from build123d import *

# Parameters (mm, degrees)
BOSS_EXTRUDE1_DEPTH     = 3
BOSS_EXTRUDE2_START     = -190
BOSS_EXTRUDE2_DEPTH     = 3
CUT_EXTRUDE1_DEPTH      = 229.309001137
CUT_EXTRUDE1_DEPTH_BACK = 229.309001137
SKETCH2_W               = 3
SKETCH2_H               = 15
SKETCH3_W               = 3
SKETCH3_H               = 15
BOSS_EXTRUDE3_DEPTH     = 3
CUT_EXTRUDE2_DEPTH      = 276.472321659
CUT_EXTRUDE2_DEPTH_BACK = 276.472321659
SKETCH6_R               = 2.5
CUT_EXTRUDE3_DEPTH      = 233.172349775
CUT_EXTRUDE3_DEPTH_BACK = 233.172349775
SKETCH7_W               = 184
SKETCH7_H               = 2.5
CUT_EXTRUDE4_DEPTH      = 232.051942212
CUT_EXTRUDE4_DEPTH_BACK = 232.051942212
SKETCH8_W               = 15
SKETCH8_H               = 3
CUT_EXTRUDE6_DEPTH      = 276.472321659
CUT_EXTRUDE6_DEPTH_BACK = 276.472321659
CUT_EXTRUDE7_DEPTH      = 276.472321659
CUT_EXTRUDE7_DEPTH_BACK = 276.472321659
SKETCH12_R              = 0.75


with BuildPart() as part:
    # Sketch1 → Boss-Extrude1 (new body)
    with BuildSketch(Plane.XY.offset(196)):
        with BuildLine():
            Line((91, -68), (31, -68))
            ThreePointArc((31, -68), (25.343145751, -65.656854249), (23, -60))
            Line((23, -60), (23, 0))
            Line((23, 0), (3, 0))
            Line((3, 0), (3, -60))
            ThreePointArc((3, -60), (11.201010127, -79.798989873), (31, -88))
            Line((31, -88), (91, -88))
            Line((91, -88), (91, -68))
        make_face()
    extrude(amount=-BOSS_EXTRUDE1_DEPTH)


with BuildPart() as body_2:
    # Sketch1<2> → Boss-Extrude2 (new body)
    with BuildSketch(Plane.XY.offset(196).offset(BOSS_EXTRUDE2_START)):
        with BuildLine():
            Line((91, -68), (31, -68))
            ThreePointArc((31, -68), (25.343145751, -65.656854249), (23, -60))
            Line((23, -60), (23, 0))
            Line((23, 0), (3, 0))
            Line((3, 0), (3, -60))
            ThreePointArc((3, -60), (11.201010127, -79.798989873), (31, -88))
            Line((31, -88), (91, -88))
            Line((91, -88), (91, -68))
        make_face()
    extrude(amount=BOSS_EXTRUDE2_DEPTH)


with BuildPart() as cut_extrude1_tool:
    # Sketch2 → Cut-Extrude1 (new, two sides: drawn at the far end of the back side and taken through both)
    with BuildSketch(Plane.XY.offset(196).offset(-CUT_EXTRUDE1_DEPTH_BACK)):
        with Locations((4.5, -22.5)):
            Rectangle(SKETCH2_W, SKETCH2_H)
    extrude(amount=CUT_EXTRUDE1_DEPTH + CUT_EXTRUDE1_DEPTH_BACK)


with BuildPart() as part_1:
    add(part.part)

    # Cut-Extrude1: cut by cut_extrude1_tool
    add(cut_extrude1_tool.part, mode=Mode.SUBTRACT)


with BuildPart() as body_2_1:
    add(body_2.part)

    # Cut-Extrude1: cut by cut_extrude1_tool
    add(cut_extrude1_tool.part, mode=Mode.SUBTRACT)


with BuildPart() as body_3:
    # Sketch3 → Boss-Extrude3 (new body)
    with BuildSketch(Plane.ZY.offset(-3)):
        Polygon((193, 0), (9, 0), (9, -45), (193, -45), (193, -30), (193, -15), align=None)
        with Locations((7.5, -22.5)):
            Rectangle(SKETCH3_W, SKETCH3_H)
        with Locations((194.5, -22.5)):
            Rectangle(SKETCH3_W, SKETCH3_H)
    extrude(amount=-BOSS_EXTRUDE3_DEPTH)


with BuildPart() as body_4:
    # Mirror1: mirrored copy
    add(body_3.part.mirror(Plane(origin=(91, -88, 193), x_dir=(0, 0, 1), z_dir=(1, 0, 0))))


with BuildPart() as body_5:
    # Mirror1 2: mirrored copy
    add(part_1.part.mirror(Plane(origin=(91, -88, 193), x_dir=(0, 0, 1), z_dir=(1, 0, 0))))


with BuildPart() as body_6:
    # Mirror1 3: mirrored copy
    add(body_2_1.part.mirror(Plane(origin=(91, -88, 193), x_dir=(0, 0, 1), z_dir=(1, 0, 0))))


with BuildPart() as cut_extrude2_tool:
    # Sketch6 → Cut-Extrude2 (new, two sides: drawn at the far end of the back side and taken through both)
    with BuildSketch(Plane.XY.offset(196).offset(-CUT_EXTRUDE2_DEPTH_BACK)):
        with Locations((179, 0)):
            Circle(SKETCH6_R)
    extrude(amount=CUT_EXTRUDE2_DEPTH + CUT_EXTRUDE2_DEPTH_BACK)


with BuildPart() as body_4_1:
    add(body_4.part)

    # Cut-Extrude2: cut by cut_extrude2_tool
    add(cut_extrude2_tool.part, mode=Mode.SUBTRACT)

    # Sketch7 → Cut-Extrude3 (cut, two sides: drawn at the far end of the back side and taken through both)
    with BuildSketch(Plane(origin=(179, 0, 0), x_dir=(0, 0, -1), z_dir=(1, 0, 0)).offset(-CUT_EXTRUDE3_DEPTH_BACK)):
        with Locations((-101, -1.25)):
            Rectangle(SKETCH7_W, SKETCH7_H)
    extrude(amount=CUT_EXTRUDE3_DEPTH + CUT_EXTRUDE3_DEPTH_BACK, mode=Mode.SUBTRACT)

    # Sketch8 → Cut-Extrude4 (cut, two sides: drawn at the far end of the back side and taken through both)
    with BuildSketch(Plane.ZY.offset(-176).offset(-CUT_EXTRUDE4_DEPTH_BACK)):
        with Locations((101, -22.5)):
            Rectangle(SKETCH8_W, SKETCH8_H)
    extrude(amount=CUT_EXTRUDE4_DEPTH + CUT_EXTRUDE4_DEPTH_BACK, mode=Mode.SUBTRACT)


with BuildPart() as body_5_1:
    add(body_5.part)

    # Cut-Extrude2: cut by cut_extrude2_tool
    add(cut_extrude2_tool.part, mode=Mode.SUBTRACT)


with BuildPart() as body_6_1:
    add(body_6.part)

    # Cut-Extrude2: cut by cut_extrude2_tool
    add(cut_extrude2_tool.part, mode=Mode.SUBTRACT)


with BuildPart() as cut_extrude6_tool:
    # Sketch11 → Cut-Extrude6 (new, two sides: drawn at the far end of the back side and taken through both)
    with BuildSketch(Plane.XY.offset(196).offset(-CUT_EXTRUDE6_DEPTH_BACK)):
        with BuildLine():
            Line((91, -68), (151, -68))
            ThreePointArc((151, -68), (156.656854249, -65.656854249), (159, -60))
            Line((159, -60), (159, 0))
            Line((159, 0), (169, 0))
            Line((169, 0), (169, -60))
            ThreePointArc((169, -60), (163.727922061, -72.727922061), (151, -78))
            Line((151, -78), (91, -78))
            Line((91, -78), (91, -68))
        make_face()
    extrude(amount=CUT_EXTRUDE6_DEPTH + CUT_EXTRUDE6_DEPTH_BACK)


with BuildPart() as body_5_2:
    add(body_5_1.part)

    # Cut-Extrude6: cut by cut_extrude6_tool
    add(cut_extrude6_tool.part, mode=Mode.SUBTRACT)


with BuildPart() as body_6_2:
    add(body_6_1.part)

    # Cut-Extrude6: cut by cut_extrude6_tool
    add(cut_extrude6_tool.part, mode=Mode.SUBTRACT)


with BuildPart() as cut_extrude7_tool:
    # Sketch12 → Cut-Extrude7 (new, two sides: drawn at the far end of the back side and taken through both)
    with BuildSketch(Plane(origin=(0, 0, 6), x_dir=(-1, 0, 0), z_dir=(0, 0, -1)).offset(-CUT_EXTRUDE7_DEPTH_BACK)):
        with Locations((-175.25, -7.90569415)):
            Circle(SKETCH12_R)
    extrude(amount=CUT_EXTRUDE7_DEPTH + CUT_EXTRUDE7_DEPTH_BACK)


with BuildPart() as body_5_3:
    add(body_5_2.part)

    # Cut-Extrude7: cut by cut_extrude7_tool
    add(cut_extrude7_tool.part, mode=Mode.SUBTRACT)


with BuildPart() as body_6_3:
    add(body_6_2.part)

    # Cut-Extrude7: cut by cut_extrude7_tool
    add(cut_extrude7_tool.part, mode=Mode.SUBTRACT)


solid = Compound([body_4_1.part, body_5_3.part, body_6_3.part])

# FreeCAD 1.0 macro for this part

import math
import FreeCAD as App
import Part
import Sketcher

V = App.Vector

doc = App.newDocument("Part")
body = doc.addObject("PartDesign::Body", "Body")

sketch1 = body.newObject("Sketcher::SketchObject", "Sketch")
sketch1.AttachmentSupport = (doc.getObject("XY_Plane"), [""])
sketch1.MapMode = "FlatFace"
sketch1.AttachmentOffset = App.Placement(V(0, 0, 196), App.Rotation())
sketch1.addGeometry(Part.LineSegment(V(91, -68, 0), V(31, -68, 0)), False)
sketch1.addGeometry(Part.ArcOfCircle(Part.Circle(V(31, -60, 0), V(0, 0, 1), 8), math.radians(-180), math.radians(-90)), False)
sketch1.addGeometry(Part.LineSegment(V(23, -60, 0), V(23, 0, 0)), False)
sketch1.addGeometry(Part.LineSegment(V(23, 0, 0), V(3, 0, 0)), False)
sketch1.addGeometry(Part.LineSegment(V(3, 0, 0), V(3, -60, 0)), False)
sketch1.addGeometry(Part.ArcOfCircle(Part.Circle(V(31, -60, 0), V(0, 0, 1), 28), math.radians(-180), math.radians(-90)), False)
sketch1.addGeometry(Part.LineSegment(V(31, -88, 0), V(91, -88, 0)), False)
sketch1.addGeometry(Part.LineSegment(V(91, -88, 0), V(91, -68, 0)), False)
sketch1.addConstraint(Sketcher.Constraint("Tangent", 0, 2, 1, 2))
sketch1.addConstraint(Sketcher.Constraint("Tangent", 1, 1, 2, 1))
sketch1.addConstraint(Sketcher.Constraint("Coincident", 2, 2, 3, 1))
sketch1.addConstraint(Sketcher.Constraint("Coincident", 3, 2, 4, 1))
sketch1.addConstraint(Sketcher.Constraint("Tangent", 4, 2, 5, 1))
sketch1.addConstraint(Sketcher.Constraint("Tangent", 5, 2, 6, 1))
sketch1.addConstraint(Sketcher.Constraint("Coincident", 6, 2, 7, 1))
sketch1.addConstraint(Sketcher.Constraint("Coincident", 7, 2, 0, 1))
sketch1.addConstraint(Sketcher.Constraint("Horizontal", 0))
sketch1.addConstraint(Sketcher.Constraint("Vertical", 2))
sketch1.addConstraint(Sketcher.Constraint("Horizontal", 3))
sketch1.addConstraint(Sketcher.Constraint("Vertical", 4))
sketch1.addConstraint(Sketcher.Constraint("Horizontal", 6))
sketch1.addConstraint(Sketcher.Constraint("Vertical", 7))
sketch1.addConstraint(Sketcher.Constraint("Coincident", 5, 3, 1, 3))
sketch1.addConstraint(Sketcher.Constraint("PointOnObject", 2, 2, -1))
sketch1.addConstraint(Sketcher.Constraint("Equal", 6, 2))
sketch1.addConstraint(Sketcher.Constraint("Radius", 1, 8.0))
sketch1.addConstraint(Sketcher.Constraint("Radius", 5, 28.0))
sketch1.addConstraint(Sketcher.Constraint("DistanceX", 0, 2, 0, 1, 60.0))
sketch1.addConstraint(Sketcher.Constraint("DistanceX", -1, 1, 1, 3, 31.0))
pad1 = body.newObject("PartDesign::Pad", "Pad")
pad1.Profile = sketch1
pad1.Length = 3
pad1.Reversed = True
body2 = doc.addObject("PartDesign::Body", "Body001")

sketch2 = body2.newObject("Sketcher::SketchObject", "Sketch001")
sketch2.AttachmentSupport = (doc.getObject("XY_Plane001"), [""])
sketch2.MapMode = "FlatFace"
sketch2.AttachmentOffset = App.Placement(V(0, 0, 6), App.Rotation())
sketch2.addGeometry(Part.LineSegment(V(91, -68, 0), V(31, -68, 0)), False)
sketch2.addGeometry(Part.ArcOfCircle(Part.Circle(V(31, -60, 0), V(0, 0, 1), 8), math.radians(-180), math.radians(-90)), False)
sketch2.addGeometry(Part.LineSegment(V(23, -60, 0), V(23, 0, 0)), False)
sketch2.addGeometry(Part.LineSegment(V(23, 0, 0), V(3, 0, 0)), False)
sketch2.addGeometry(Part.LineSegment(V(3, 0, 0), V(3, -60, 0)), False)
sketch2.addGeometry(Part.ArcOfCircle(Part.Circle(V(31, -60, 0), V(0, 0, 1), 28), math.radians(-180), math.radians(-90)), False)
sketch2.addGeometry(Part.LineSegment(V(31, -88, 0), V(91, -88, 0)), False)
sketch2.addGeometry(Part.LineSegment(V(91, -88, 0), V(91, -68, 0)), False)
sketch2.addConstraint(Sketcher.Constraint("Tangent", 0, 2, 1, 2))
sketch2.addConstraint(Sketcher.Constraint("Tangent", 1, 1, 2, 1))
sketch2.addConstraint(Sketcher.Constraint("Coincident", 2, 2, 3, 1))
sketch2.addConstraint(Sketcher.Constraint("Coincident", 3, 2, 4, 1))
sketch2.addConstraint(Sketcher.Constraint("Tangent", 4, 2, 5, 1))
sketch2.addConstraint(Sketcher.Constraint("Tangent", 5, 2, 6, 1))
sketch2.addConstraint(Sketcher.Constraint("Coincident", 6, 2, 7, 1))
sketch2.addConstraint(Sketcher.Constraint("Coincident", 7, 2, 0, 1))
sketch2.addConstraint(Sketcher.Constraint("Horizontal", 0))
sketch2.addConstraint(Sketcher.Constraint("Vertical", 2))
sketch2.addConstraint(Sketcher.Constraint("Horizontal", 3))
sketch2.addConstraint(Sketcher.Constraint("Vertical", 4))
sketch2.addConstraint(Sketcher.Constraint("Horizontal", 6))
sketch2.addConstraint(Sketcher.Constraint("Vertical", 7))
sketch2.addConstraint(Sketcher.Constraint("Coincident", 5, 3, 1, 3))
sketch2.addConstraint(Sketcher.Constraint("PointOnObject", 2, 2, -1))
sketch2.addConstraint(Sketcher.Constraint("Equal", 6, 2))
sketch2.addConstraint(Sketcher.Constraint("Radius", 1, 8.0))
sketch2.addConstraint(Sketcher.Constraint("Radius", 5, 28.0))
sketch2.addConstraint(Sketcher.Constraint("DistanceX", 0, 2, 0, 1, 60.0))
sketch2.addConstraint(Sketcher.Constraint("DistanceX", -1, 1, 1, 3, 31.0))
pad2 = body2.newObject("PartDesign::Pad", "Pad001")
pad2.Profile = sketch2
pad2.Length = 3
body3 = doc.addObject("PartDesign::Body", "Body002")

sketch3 = body3.newObject("Sketcher::SketchObject", "Sketch002")
sketch3.AttachmentSupport = (doc.getObject("XY_Plane002"), [""])
sketch3.MapMode = "FlatFace"
sketch3.AttachmentOffset = App.Placement(V(0, 0, 196), App.Rotation())
sketch3.addGeometry(Part.LineSegment(V(3, -15, 0), V(3, -30, 0)), False)
sketch3.addGeometry(Part.LineSegment(V(3, -30, 0), V(6, -30, 0)), False)
sketch3.addGeometry(Part.LineSegment(V(6, -30, 0), V(6, -15, 0)), False)
sketch3.addGeometry(Part.LineSegment(V(6, -15, 0), V(3, -15, 0)), False)
sketch3.addConstraint(Sketcher.Constraint("Coincident", 0, 2, 1, 1))
sketch3.addConstraint(Sketcher.Constraint("Coincident", 1, 2, 2, 1))
sketch3.addConstraint(Sketcher.Constraint("Coincident", 2, 2, 3, 1))
sketch3.addConstraint(Sketcher.Constraint("Coincident", 3, 2, 0, 1))
sketch3.addConstraint(Sketcher.Constraint("Vertical", 0))
sketch3.addConstraint(Sketcher.Constraint("Horizontal", 1))
sketch3.addConstraint(Sketcher.Constraint("Vertical", 2))
sketch3.addConstraint(Sketcher.Constraint("Horizontal", 3))
sketch3.addConstraint(Sketcher.Constraint("DistanceX", 1, 1, 1, 2, 3.0))
sketch3.addConstraint(Sketcher.Constraint("DistanceY", 0, 2, 0, 1, 15.0))
sketch3.addConstraint(Sketcher.Constraint("DistanceX", -1, 1, 0, 2, 3.0))
sketch3.addConstraint(Sketcher.Constraint("DistanceY", 0, 2, -1, 1, 30.0))
pad3 = body3.newObject("PartDesign::Pad", "Pad002")
pad3.Profile = sketch3
pad3.Type = "TwoLengths"
pad3.Length = 229.309001
pad3.Length2 = 229.309001
doc.recompute()

body4 = doc.addObject("PartDesign::Body", "Body003")
body4.BaseFeature = body3
boolean = body.newObject("PartDesign::Boolean", "Boolean")
boolean.Type = "Cut"
boolean.addObjects([body4])
doc.recompute()

boolean2 = body2.newObject("PartDesign::Boolean", "Boolean001")
boolean2.Type = "Cut"
boolean2.addObjects([body3])
body5 = doc.addObject("PartDesign::Body", "Body004")

sketch4 = body5.newObject("Sketcher::SketchObject", "Sketch003")
sketch4.AttachmentSupport = (doc.getObject("YZ_Plane004"), [""])
sketch4.MapMode = "FlatFace"
sketch4.AttachmentOffset = App.Placement(V(0, 0, 3), App.Rotation())
sketch4.addGeometry(Part.LineSegment(V(0, 193, 0), V(0, 9, 0)), False)
sketch4.addGeometry(Part.LineSegment(V(0, 9, 0), V(-15, 9, 0)), False)
sketch4.addGeometry(Part.LineSegment(V(-15, 9, 0), V(-15, 6, 0)), False)
sketch4.addGeometry(Part.LineSegment(V(-15, 6, 0), V(-30, 6, 0)), False)
sketch4.addGeometry(Part.LineSegment(V(-30, 6, 0), V(-30, 9, 0)), False)
sketch4.addGeometry(Part.LineSegment(V(-30, 9, 0), V(-45, 9, 0)), False)
sketch4.addGeometry(Part.LineSegment(V(-45, 9, 0), V(-45, 193, 0)), False)
sketch4.addGeometry(Part.LineSegment(V(-45, 193, 0), V(-30, 193, 0)), False)
sketch4.addGeometry(Part.LineSegment(V(-30, 193, 0), V(-30, 196, 0)), False)
sketch4.addGeometry(Part.LineSegment(V(-30, 196, 0), V(-15, 196, 0)), False)
sketch4.addGeometry(Part.LineSegment(V(-15, 196, 0), V(-15, 193, 0)), False)
sketch4.addGeometry(Part.LineSegment(V(-15, 193, 0), V(0, 193, 0)), False)
sketch4.addConstraint(Sketcher.Constraint("Coincident", 0, 2, 1, 1))
sketch4.addConstraint(Sketcher.Constraint("Coincident", 1, 2, 2, 1))
sketch4.addConstraint(Sketcher.Constraint("Coincident", 2, 2, 3, 1))
sketch4.addConstraint(Sketcher.Constraint("Coincident", 3, 2, 4, 1))
sketch4.addConstraint(Sketcher.Constraint("Coincident", 4, 2, 5, 1))
sketch4.addConstraint(Sketcher.Constraint("Coincident", 5, 2, 6, 1))
sketch4.addConstraint(Sketcher.Constraint("Coincident", 6, 2, 7, 1))
sketch4.addConstraint(Sketcher.Constraint("Coincident", 7, 2, 8, 1))
sketch4.addConstraint(Sketcher.Constraint("Coincident", 8, 2, 9, 1))
sketch4.addConstraint(Sketcher.Constraint("Coincident", 9, 2, 10, 1))
sketch4.addConstraint(Sketcher.Constraint("Coincident", 10, 2, 11, 1))
sketch4.addConstraint(Sketcher.Constraint("Coincident", 11, 2, 0, 1))
sketch4.addConstraint(Sketcher.Constraint("Vertical", 0))
sketch4.addConstraint(Sketcher.Constraint("Horizontal", 1))
sketch4.addConstraint(Sketcher.Constraint("Vertical", 2))
sketch4.addConstraint(Sketcher.Constraint("Horizontal", 3))
sketch4.addConstraint(Sketcher.Constraint("Vertical", 4))
sketch4.addConstraint(Sketcher.Constraint("Horizontal", 5))
sketch4.addConstraint(Sketcher.Constraint("Vertical", 6))
sketch4.addConstraint(Sketcher.Constraint("Horizontal", 7))
sketch4.addConstraint(Sketcher.Constraint("Vertical", 8))
sketch4.addConstraint(Sketcher.Constraint("Horizontal", 9))
sketch4.addConstraint(Sketcher.Constraint("Vertical", 10))
sketch4.addConstraint(Sketcher.Constraint("Horizontal", 11))
sketch4.addConstraint(Sketcher.Constraint("PointOnObject", 0, 2, -2))
sketch4.addConstraint(Sketcher.Constraint("Horizontal", 1, 2, 4, 2))
sketch4.addConstraint(Sketcher.Constraint("Horizontal", 7, 2, 10, 2))
sketch4.addConstraint(Sketcher.Constraint("Vertical", 4, 2, 7, 2))
sketch4.addConstraint(Sketcher.Constraint("Vertical", 2, 2, 9, 2))
sketch4.addConstraint(Sketcher.Constraint("Equal", 1, 3))
sketch4.addConstraint(Sketcher.Constraint("Equal", 3, 5))
sketch4.addConstraint(Sketcher.Constraint("Equal", 4, 8))
sketch4.addConstraint(Sketcher.Constraint("DistanceX", 1, 2, 1, 1, 15.0))
sketch4.addConstraint(Sketcher.Constraint("DistanceY", 0, 2, 0, 1, 184.0))
sketch4.addConstraint(Sketcher.Constraint("DistanceY", 2, 2, 2, 1, 3.0))
sketch4.addConstraint(Sketcher.Constraint("DistanceY", -1, 1, 0, 2, 9.0))
pad4 = body5.newObject("PartDesign::Pad", "Pad003")
pad4.Profile = sketch4
pad4.Length = 3
body6 = doc.addObject("PartDesign::Body", "Body005")
doc.recompute()

mirroring = doc.addObject("Part::Mirroring", "Mirroring")
mirroring.Source = body5
mirroring.Base = V(91, -88, 193)
mirroring.Normal = V(1, 0, 0)
body6.BaseFeature = mirroring
doc.recompute()
body7 = doc.addObject("PartDesign::Body", "Body006")
doc.recompute()

mirroring2 = doc.addObject("Part::Mirroring", "Mirroring001")
mirroring2.Source = body
mirroring2.Base = V(91, -88, 193)
mirroring2.Normal = V(1, 0, 0)
body7.BaseFeature = mirroring2
doc.recompute()
body8 = doc.addObject("PartDesign::Body", "Body007")
doc.recompute()

mirroring3 = doc.addObject("Part::Mirroring", "Mirroring002")
mirroring3.Source = body2
mirroring3.Base = V(91, -88, 193)
mirroring3.Normal = V(1, 0, 0)
body8.BaseFeature = mirroring3
doc.recompute()
body9 = doc.addObject("PartDesign::Body", "Body008")

sketch5 = body9.newObject("Sketcher::SketchObject", "Sketch004")
sketch5.AttachmentSupport = (doc.getObject("XY_Plane008"), [""])
sketch5.MapMode = "FlatFace"
sketch5.AttachmentOffset = App.Placement(V(0, 0, 196), App.Rotation())
sketch5.addGeometry(Part.Circle(V(179, 0, 0), V(0, 0, 1), 2.5), False)
sketch5.addConstraint(Sketcher.Constraint("PointOnObject", 0, 3, -1))
sketch5.addConstraint(Sketcher.Constraint("Diameter", 0, 5.0))
sketch5.addConstraint(Sketcher.Constraint("DistanceX", -1, 1, 0, 3, 179.0))
pad5 = body9.newObject("PartDesign::Pad", "Pad004")
pad5.Profile = sketch5
pad5.Type = "TwoLengths"
pad5.Length = 276.472322
pad5.Length2 = 276.472322
doc.recompute()

body10 = doc.addObject("PartDesign::Body", "Body009")
body10.BaseFeature = body9
boolean3 = body6.newObject("PartDesign::Boolean", "Boolean002")
boolean3.Type = "Cut"
boolean3.addObjects([body10])
doc.recompute()

sketch6 = body6.newObject("Sketcher::SketchObject", "Sketch005")
sketch6.AttachmentSupport = (doc.getObject("YZ_Plane005"), [""])
sketch6.MapMode = "FlatFace"
sketch6.AttachmentOffset = App.Placement(V(0, 0, 179), App.Rotation())
sketch6.addGeometry(Part.LineSegment(V(0, 193, 0), V(-2.5, 193, 0)), False)
sketch6.addGeometry(Part.LineSegment(V(-2.5, 193, 0), V(-2.5, 9, 0)), False)
sketch6.addGeometry(Part.LineSegment(V(-2.5, 9, 0), V(0, 9, 0)), False)
sketch6.addGeometry(Part.LineSegment(V(0, 9, 0), V(0, 193, 0)), False)
sketch6.addConstraint(Sketcher.Constraint("Coincident", 0, 2, 1, 1))
sketch6.addConstraint(Sketcher.Constraint("Coincident", 1, 2, 2, 1))
sketch6.addConstraint(Sketcher.Constraint("Coincident", 2, 2, 3, 1))
sketch6.addConstraint(Sketcher.Constraint("Coincident", 3, 2, 0, 1))
sketch6.addConstraint(Sketcher.Constraint("Horizontal", 0))
sketch6.addConstraint(Sketcher.Constraint("Vertical", 1))
sketch6.addConstraint(Sketcher.Constraint("Horizontal", 2))
sketch6.addConstraint(Sketcher.Constraint("Vertical", 3))
sketch6.addConstraint(Sketcher.Constraint("PointOnObject", 2, 2, -2))
sketch6.addConstraint(Sketcher.Constraint("DistanceY", 1, 2, 1, 1, 184.0))
sketch6.addConstraint(Sketcher.Constraint("DistanceX", 0, 2, 0, 1, 2.5))
sketch6.addConstraint(Sketcher.Constraint("DistanceY", -1, 1, 0, 2, 193.0))
pocket1 = body6.newObject("PartDesign::Pocket", "Pocket")
pocket1.Profile = sketch6
pocket1.Type = "ThroughAll"
pocket1.Midplane = True

sketch7 = body6.newObject("Sketcher::SketchObject", "Sketch006")
sketch7.AttachmentSupport = (doc.getObject("YZ_Plane005"), [""])
sketch7.MapMode = "FlatFace"
sketch7.AttachmentOffset = App.Placement(V(0, 0, 176), App.Rotation())
sketch7.addGeometry(Part.LineSegment(V(-21, 93.5, 0), V(-24, 93.5, 0)), False)
sketch7.addGeometry(Part.LineSegment(V(-24, 93.5, 0), V(-24, 108.5, 0)), False)
sketch7.addGeometry(Part.LineSegment(V(-24, 108.5, 0), V(-21, 108.5, 0)), False)
sketch7.addGeometry(Part.LineSegment(V(-21, 108.5, 0), V(-21, 93.5, 0)), False)
sketch7.addConstraint(Sketcher.Constraint("Coincident", 0, 2, 1, 1))
sketch7.addConstraint(Sketcher.Constraint("Coincident", 1, 2, 2, 1))
sketch7.addConstraint(Sketcher.Constraint("Coincident", 2, 2, 3, 1))
sketch7.addConstraint(Sketcher.Constraint("Coincident", 3, 2, 0, 1))
sketch7.addConstraint(Sketcher.Constraint("Horizontal", 0))
sketch7.addConstraint(Sketcher.Constraint("Vertical", 1))
sketch7.addConstraint(Sketcher.Constraint("Horizontal", 2))
sketch7.addConstraint(Sketcher.Constraint("Vertical", 3))
sketch7.addConstraint(Sketcher.Constraint("DistanceX", 0, 2, 0, 1, 3.0))
sketch7.addConstraint(Sketcher.Constraint("DistanceY", 1, 1, 1, 2, 15.0))
sketch7.addConstraint(Sketcher.Constraint("DistanceX", 0, 2, -1, 1, 24.0))
sketch7.addConstraint(Sketcher.Constraint("DistanceY", -1, 1, 0, 2, 93.5))
pocket2 = body6.newObject("PartDesign::Pocket", "Pocket001")
pocket2.Profile = sketch7
pocket2.Type = "ThroughAll"
pocket2.Midplane = True
doc.recompute()

body11 = doc.addObject("PartDesign::Body", "Body010")
body11.BaseFeature = body9
boolean4 = body7.newObject("PartDesign::Boolean", "Boolean003")
boolean4.Type = "Cut"
boolean4.addObjects([body11])
doc.recompute()

boolean5 = body8.newObject("PartDesign::Boolean", "Boolean004")
boolean5.Type = "Cut"
boolean5.addObjects([body9])
body12 = doc.addObject("PartDesign::Body", "Body011")

sketch8 = body12.newObject("Sketcher::SketchObject", "Sketch007")
sketch8.AttachmentSupport = (doc.getObject("XY_Plane011"), [""])
sketch8.MapMode = "FlatFace"
sketch8.AttachmentOffset = App.Placement(V(0, 0, 196), App.Rotation())
sketch8.addGeometry(Part.LineSegment(V(151, -68, 0), V(91, -68, 0)), False)
sketch8.addGeometry(Part.LineSegment(V(91, -68, 0), V(91, -78, 0)), False)
sketch8.addGeometry(Part.LineSegment(V(91, -78, 0), V(151, -78, 0)), False)
sketch8.addGeometry(Part.ArcOfCircle(Part.Circle(V(151, -60, 0), V(0, 0, 1), 18), math.radians(-90), math.radians(0)), False)
sketch8.addGeometry(Part.LineSegment(V(169, -60, 0), V(169, 0, 0)), False)
sketch8.addGeometry(Part.LineSegment(V(169, 0, 0), V(159, 0, 0)), False)
sketch8.addGeometry(Part.LineSegment(V(159, 0, 0), V(159, -60, 0)), False)
sketch8.addGeometry(Part.ArcOfCircle(Part.Circle(V(151, -60, 0), V(0, 0, 1), 8), math.radians(-90), math.radians(0)), False)
sketch8.addConstraint(Sketcher.Constraint("Coincident", 0, 2, 1, 1))
sketch8.addConstraint(Sketcher.Constraint("Coincident", 1, 2, 2, 1))
sketch8.addConstraint(Sketcher.Constraint("Tangent", 2, 2, 3, 1))
sketch8.addConstraint(Sketcher.Constraint("Tangent", 3, 2, 4, 1))
sketch8.addConstraint(Sketcher.Constraint("Coincident", 4, 2, 5, 1))
sketch8.addConstraint(Sketcher.Constraint("Coincident", 5, 2, 6, 1))
sketch8.addConstraint(Sketcher.Constraint("Tangent", 6, 2, 7, 2))
sketch8.addConstraint(Sketcher.Constraint("Tangent", 7, 1, 0, 1))
sketch8.addConstraint(Sketcher.Constraint("Horizontal", 0))
sketch8.addConstraint(Sketcher.Constraint("Vertical", 1))
sketch8.addConstraint(Sketcher.Constraint("Horizontal", 2))
sketch8.addConstraint(Sketcher.Constraint("Vertical", 4))
sketch8.addConstraint(Sketcher.Constraint("Horizontal", 5))
sketch8.addConstraint(Sketcher.Constraint("Vertical", 6))
sketch8.addConstraint(Sketcher.Constraint("Coincident", 7, 3, 3, 3))
sketch8.addConstraint(Sketcher.Constraint("PointOnObject", 4, 2, -1))
sketch8.addConstraint(Sketcher.Constraint("Equal", 2, 4))
sketch8.addConstraint(Sketcher.Constraint("Radius", 3, 18.0))
sketch8.addConstraint(Sketcher.Constraint("Radius", 7, 8.0))
sketch8.addConstraint(Sketcher.Constraint("DistanceX", 0, 2, 0, 1, 60.0))
sketch8.addConstraint(Sketcher.Constraint("DistanceX", -1, 1, 3, 3, 151.0))
pad6 = body12.newObject("PartDesign::Pad", "Pad005")
pad6.Profile = sketch8
pad6.Type = "TwoLengths"
pad6.Length = 276.472322
pad6.Length2 = 276.472322
doc.recompute()

body13 = doc.addObject("PartDesign::Body", "Body012")
body13.BaseFeature = body12
boolean6 = body7.newObject("PartDesign::Boolean", "Boolean005")
boolean6.Type = "Cut"
boolean6.addObjects([body13])
doc.recompute()

boolean7 = body8.newObject("PartDesign::Boolean", "Boolean006")
boolean7.Type = "Cut"
boolean7.addObjects([body12])
body14 = doc.addObject("PartDesign::Body", "Body013")

sketch9 = body14.newObject("Sketcher::SketchObject", "Sketch008")
sketch9.AttachmentSupport = (doc.getObject("XY_Plane013"), [""])
sketch9.MapMode = "FlatFace"
sketch9.AttachmentOffset = App.Placement(V(0, 0, 6), App.Rotation())
sketch9.addGeometry(Part.Circle(V(175.2, -7.9, 0), V(0, 0, 1), 0.8), False)
sketch9.addConstraint(Sketcher.Constraint("Diameter", 0, 1.5))
sketch9.addConstraint(Sketcher.Constraint("DistanceX", -1, 1, 0, 3, 175.25))
sketch9.addConstraint(Sketcher.Constraint("DistanceY", 0, 3, -1, 1, 7.905694))
pad7 = body14.newObject("PartDesign::Pad", "Pad006")
pad7.Profile = sketch9
pad7.Type = "TwoLengths"
pad7.Length = 276.472322
pad7.Length2 = 276.472322
pad7.Reversed = True
doc.recompute()

body15 = doc.addObject("PartDesign::Body", "Body014")
body15.BaseFeature = body14
boolean8 = body7.newObject("PartDesign::Boolean", "Boolean007")
boolean8.Type = "Cut"
boolean8.addObjects([body15])
doc.recompute()

boolean9 = body8.newObject("PartDesign::Boolean", "Boolean008")
boolean9.Type = "Cut"
boolean9.addObjects([body14])
body.Visibility = False
body2.Visibility = False
body5.Visibility = False
mirroring.Visibility = False
mirroring2.Visibility = False
mirroring3.Visibility = False

doc.recompute()
